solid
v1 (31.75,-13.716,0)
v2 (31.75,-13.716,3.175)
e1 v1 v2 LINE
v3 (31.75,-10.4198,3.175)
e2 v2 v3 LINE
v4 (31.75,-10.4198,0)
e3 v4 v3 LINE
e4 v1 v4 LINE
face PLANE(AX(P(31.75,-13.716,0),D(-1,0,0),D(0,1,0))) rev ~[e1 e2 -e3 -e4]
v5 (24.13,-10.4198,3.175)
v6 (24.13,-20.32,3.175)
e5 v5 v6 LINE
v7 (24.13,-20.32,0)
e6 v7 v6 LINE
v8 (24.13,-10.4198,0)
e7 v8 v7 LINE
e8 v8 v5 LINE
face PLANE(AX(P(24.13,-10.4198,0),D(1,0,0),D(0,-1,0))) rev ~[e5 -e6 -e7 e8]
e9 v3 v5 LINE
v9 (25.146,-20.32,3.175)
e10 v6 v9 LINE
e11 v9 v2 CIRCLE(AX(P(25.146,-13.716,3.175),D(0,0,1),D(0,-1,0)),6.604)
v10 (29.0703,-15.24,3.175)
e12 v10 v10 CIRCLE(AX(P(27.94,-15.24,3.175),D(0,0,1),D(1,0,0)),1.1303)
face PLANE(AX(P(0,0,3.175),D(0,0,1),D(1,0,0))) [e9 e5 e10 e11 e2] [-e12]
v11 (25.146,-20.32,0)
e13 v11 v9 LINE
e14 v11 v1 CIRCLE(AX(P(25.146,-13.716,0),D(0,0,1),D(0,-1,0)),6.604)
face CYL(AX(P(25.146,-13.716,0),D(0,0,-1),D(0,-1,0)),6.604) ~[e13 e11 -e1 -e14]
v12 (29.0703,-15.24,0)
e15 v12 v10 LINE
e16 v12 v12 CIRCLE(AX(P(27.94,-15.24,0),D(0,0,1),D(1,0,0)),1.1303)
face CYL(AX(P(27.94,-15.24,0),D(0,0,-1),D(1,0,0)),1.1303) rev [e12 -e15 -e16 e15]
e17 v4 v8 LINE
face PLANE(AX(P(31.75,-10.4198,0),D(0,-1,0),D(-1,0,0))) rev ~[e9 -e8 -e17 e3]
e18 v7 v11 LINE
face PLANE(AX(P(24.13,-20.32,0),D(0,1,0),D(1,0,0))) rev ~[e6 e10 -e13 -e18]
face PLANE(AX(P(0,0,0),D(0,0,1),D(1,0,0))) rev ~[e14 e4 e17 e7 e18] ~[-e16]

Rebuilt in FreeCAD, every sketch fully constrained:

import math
import FreeCAD as App
import Part
import Sketcher

V = App.Vector
Q = App.Units.Quantity

doc = App.newDocument("Part")
body = doc.addObject("PartDesign::Body", "Body")

sketch1 = body.newObject("Sketcher::SketchObject", "Sketch")
sketch1.AttachmentSupport = (doc.getObject("XY_Plane"), [""])
sketch1.MapMode = "FlatFace"
sketch1.addGeometry(Part.ArcOfCircle(Part.Circle(V(25.146, -13.716, 0), V(0, 0, 1), 6.604), math.radians(-90), math.radians(0)), False)
sketch1.addGeometry(Part.LineSegment(V(31.75, -13.716, 0), V(31.75, -10.4198, 0)), False)
sketch1.addGeometry(Part.LineSegment(V(31.75, -10.4198, 0), V(24.13, -10.4198, 0)), False)
sketch1.addGeometry(Part.LineSegment(V(24.13, -10.4198, 0), V(24.13, -20.32, 0)), False)
sketch1.addGeometry(Part.LineSegment(V(24.13, -20.32, 0), V(25.146, -20.32, 0)), False)
sketch1.addGeometry(Part.Circle(V(27.94, -15.24, 0), V(0, 0, 1), 1.1303), False)
sketch1.addConstraint(Sketcher.Constraint("Tangent", 0, 2, 1, 1))
sketch1.addConstraint(Sketcher.Constraint("Coincident", 1, 2, 2, 1))
sketch1.addConstraint(Sketcher.Constraint("Coincident", 2, 2, 3, 1))
sketch1.addConstraint(Sketcher.Constraint("Coincident", 3, 2, 4, 1))
sketch1.addConstraint(Sketcher.Constraint("Tangent", 4, 2, 0, 1))
sketch1.addConstraint(Sketcher.Constraint("Vertical", 1))
sketch1.addConstraint(Sketcher.Constraint("Horizontal", 2))
sketch1.addConstraint(Sketcher.Constraint("Vertical", 3))
sketch1.addConstraint(Sketcher.Constraint("Horizontal", 4))
sketch1.addConstraint(Sketcher.Constraint("Radius", 0, Q("0.26 in")))
sketch1.addConstraint(Sketcher.Constraint("Diameter", 5, Q("0.089 in")))
sketch1.addConstraint(Sketcher.Constraint("DistanceX", 2, 2, 2, 1, Q("0.3 in")))
sketch1.addConstraint(Sketcher.Constraint("DistanceX", -1, 1, 5, 3, Q("1.1 in")))
sketch1.addConstraint(Sketcher.Constraint("DistanceY", 5, 3, -1, 1, Q("0.6 in")))
sketch1.addConstraint(Sketcher.Constraint("DistanceY", 3, 2, -1, 1, Q("0.8 in")))
sketch1.addConstraint(Sketcher.Constraint("DistanceX", -1, 1, 0, 3, Q("0.99 in")))
sketch1.addConstraint(Sketcher.Constraint("DistanceY", 1, 1, 1, 2, 3.2962))
pad1 = body.newObject("PartDesign::Pad", "Pad")
pad1.Profile = sketch1
pad1.Length = Q("0.125 in")

doc.recompute()
